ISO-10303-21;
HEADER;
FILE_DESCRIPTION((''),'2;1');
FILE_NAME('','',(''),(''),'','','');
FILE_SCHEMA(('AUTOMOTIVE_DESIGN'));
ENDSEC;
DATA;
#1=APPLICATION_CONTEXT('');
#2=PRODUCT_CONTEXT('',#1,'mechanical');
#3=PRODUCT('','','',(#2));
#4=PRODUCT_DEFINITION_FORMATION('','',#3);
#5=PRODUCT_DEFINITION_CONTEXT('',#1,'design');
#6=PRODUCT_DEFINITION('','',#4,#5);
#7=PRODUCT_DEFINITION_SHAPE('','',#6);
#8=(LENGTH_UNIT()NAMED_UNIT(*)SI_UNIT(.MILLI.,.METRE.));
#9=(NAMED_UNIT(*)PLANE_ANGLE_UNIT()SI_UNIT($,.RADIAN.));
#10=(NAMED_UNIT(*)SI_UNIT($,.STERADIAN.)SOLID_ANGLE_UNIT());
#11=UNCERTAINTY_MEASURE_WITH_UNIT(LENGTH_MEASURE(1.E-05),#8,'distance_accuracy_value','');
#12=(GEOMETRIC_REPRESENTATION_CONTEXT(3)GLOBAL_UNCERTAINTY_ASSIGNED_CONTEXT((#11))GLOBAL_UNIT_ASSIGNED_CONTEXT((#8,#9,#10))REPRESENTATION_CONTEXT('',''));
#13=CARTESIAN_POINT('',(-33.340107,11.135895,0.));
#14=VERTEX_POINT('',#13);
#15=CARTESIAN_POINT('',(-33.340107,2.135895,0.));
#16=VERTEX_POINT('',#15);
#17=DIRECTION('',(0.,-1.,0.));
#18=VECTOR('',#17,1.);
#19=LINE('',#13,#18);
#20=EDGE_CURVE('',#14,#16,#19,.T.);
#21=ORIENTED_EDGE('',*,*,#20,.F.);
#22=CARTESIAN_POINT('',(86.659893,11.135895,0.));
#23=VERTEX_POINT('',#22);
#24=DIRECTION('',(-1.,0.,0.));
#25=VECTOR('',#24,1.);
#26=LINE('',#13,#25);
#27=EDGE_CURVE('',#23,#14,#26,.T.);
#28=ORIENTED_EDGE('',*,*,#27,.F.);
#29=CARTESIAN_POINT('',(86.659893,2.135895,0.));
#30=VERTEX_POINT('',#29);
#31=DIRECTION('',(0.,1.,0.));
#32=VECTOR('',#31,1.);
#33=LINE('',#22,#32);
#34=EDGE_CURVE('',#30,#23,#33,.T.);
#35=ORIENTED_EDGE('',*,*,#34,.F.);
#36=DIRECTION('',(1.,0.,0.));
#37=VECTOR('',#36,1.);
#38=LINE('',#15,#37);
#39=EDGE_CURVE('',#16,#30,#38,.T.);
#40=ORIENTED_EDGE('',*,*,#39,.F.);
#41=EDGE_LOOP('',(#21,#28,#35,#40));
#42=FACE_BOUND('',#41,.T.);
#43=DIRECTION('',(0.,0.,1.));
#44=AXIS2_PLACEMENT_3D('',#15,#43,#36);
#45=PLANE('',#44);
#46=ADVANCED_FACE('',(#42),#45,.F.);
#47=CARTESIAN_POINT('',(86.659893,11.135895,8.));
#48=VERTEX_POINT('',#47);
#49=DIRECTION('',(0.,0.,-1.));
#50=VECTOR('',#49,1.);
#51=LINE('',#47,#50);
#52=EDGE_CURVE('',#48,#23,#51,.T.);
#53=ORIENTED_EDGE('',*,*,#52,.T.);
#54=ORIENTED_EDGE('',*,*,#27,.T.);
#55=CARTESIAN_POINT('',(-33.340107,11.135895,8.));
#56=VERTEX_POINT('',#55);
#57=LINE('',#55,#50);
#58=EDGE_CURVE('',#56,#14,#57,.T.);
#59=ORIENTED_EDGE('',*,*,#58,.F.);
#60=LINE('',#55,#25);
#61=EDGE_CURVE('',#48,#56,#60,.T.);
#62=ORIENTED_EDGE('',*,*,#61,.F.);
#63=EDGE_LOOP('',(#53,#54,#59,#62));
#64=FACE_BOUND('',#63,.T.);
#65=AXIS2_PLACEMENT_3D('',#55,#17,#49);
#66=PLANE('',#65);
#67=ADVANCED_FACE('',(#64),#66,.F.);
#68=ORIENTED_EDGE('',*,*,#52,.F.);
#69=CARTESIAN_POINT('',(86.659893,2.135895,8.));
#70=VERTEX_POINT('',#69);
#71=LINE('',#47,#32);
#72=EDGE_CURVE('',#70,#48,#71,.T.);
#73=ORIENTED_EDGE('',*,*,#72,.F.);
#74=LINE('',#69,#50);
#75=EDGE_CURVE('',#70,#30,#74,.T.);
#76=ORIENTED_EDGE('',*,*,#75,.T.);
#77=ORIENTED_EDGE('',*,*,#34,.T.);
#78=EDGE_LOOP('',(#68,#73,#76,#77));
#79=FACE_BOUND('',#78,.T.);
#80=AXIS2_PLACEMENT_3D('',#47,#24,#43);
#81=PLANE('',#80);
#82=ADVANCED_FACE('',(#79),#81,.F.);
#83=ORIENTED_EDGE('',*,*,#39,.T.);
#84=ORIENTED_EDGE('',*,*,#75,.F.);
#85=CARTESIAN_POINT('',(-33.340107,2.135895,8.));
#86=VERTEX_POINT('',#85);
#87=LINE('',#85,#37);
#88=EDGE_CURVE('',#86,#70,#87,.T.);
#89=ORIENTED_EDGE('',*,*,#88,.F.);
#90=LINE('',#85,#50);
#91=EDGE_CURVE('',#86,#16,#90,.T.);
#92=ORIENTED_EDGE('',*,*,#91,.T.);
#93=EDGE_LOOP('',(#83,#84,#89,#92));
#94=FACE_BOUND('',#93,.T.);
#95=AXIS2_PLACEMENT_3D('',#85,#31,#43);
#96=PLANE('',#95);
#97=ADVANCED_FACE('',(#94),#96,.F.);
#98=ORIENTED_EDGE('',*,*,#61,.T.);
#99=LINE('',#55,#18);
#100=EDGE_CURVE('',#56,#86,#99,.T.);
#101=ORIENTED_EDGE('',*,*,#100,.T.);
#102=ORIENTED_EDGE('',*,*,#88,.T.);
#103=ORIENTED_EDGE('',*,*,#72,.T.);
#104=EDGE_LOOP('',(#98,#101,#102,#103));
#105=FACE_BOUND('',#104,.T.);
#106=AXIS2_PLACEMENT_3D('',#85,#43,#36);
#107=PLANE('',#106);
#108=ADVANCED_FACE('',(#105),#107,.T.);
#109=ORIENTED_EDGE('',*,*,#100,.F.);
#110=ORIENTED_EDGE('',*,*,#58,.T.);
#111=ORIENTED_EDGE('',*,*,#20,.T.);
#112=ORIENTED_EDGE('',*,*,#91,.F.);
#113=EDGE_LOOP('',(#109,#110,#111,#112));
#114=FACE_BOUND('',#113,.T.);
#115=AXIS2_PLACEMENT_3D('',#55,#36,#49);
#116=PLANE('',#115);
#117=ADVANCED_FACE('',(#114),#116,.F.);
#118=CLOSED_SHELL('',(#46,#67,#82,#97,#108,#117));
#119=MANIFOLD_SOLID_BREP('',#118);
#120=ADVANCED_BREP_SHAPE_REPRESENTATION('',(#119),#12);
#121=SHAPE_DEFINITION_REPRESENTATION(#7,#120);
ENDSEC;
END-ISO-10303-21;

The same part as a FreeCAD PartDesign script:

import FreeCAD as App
import Part
import Sketcher

doc = App.newDocument("Part")
body = doc.addObject("PartDesign::Body", "Body")

sketch1 = body.newObject("Sketcher::SketchObject", "Sketch")
sketch1.AttachmentSupport = (doc.getObject("XY_Plane"), [""])
sketch1.MapMode = "FlatFace"
sketch1.addGeometry(Part.LineSegment(App.Vector(-33, 11, 0), App.Vector(-33, 2, 0)), False)
sketch1.addGeometry(Part.LineSegment(App.Vector(-33, 2, 0), App.Vector(87, 2, 0)), False)
sketch1.addGeometry(Part.LineSegment(App.Vector(87, 2, 0), App.Vector(87, 11, 0)), False)
sketch1.addGeometry(Part.LineSegment(App.Vector(87, 11, 0), App.Vector(-33, 11, 0)), False)
sketch1.addConstraint(Sketcher.Constraint("Coincident", 0, 2, 1, 1))
sketch1.addConstraint(Sketcher.Constraint("Coincident", 1, 2, 2, 1))
sketch1.addConstraint(Sketcher.Constraint("Coincident", 2, 2, 3, 1))
sketch1.addConstraint(Sketcher.Constraint("Coincident", 3, 2, 0, 1))
sketch1.addConstraint(Sketcher.Constraint("Vertical", 0))
sketch1.addConstraint(Sketcher.Constraint("Horizontal", 1))
sketch1.addConstraint(Sketcher.Constraint("Vertical", 2))
sketch1.addConstraint(Sketcher.Constraint("Horizontal", 3))
sketch1.addConstraint(Sketcher.Constraint("DistanceX", 1, 1, 1, 2, 120.0))
sketch1.addConstraint(Sketcher.Constraint("DistanceY", 0, 2, 0, 1, 9.0))
sketch1.addConstraint(Sketcher.Constraint("DistanceX", 0, 2, -1, 1, 33.340107))
sketch1.addConstraint(Sketcher.Constraint("DistanceY", -1, 1, 0, 2, 2.135895))
pad1 = body.newObject("PartDesign::Pad", "Pad")
pad1.Profile = sketch1
pad1.Length = 8

doc.recompute()
